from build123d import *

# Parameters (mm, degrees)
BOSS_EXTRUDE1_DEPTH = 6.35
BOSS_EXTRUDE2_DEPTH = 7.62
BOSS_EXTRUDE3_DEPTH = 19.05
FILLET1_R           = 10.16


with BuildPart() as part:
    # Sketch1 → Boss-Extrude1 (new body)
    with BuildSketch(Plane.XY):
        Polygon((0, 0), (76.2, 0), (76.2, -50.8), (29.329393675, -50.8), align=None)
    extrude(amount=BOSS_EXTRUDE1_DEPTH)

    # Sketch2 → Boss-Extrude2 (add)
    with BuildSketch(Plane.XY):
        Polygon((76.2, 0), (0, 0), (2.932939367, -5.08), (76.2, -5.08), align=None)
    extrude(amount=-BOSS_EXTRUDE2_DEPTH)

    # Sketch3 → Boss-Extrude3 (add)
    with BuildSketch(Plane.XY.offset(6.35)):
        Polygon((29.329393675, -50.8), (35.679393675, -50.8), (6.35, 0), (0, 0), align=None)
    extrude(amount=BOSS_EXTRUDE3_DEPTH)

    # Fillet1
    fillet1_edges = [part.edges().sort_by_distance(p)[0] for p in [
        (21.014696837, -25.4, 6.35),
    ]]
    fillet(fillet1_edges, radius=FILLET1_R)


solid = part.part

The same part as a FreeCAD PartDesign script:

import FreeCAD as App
import Part
import Sketcher

V = App.Vector
Q = App.Units.Quantity


def edges_at(feature, points):
    """Names of the edges that pass closest to the given points."""
    edges = feature.Shape.Edges
    near = lambda p: min(range(len(edges)), key=lambda i: edges[i].distToShape(Part.Vertex(*p))[0])
    return sorted({f"Edge{near(p) + 1}" for p in points})


def add_polygon(sketch, points):
    """Adds a closed chain of lines whose ends are joined by coincident constraints."""
    first, n = sketch.GeometryCount, len(points)
    for a, b in zip(points, points[1:] + points[:1]):
        sketch.addGeometry(Part.LineSegment(App.Vector(*a, 0), App.Vector(*b, 0)), False)
    for i in range(n):
        sketch.addConstraint(Sketcher.Constraint("Coincident", first + i, 2, first + (i + 1) % n, 1))

doc = App.newDocument("Part")
body = doc.addObject("PartDesign::Body", "Body")

# Sketch on XY plane
sketch1 = body.newObject("Sketcher::SketchObject", "Sketch")
sketch1.AttachmentSupport = (doc.getObject("XY_Plane"), [""])
sketch1.MapMode = "FlatFace"
add_polygon(sketch1, [(76, 0), (0, 0), (29, -51), (76, -51)])  # lines 0-3
sketch1.addConstraint([
    Sketcher.Constraint("Horizontal", 0),
    Sketcher.Constraint("Horizontal", 2),
    Sketcher.Constraint("Vertical", 3),
    Sketcher.Constraint("Coincident", 0, 2, -1, 1),
    Sketcher.Constraint("DistanceX", 0, 2, 0, 1, Q("3 in")),
    Sketcher.Constraint("DistanceY", 3, 1, 3, 2, Q("2 in")),
    Sketcher.Constraint("Angle", 1, Q("-60 deg")),
])
pad1 = body.newObject("PartDesign::Pad", "Pad")
pad1.Profile = sketch1
pad1.Length = Q("0.25 in")

# Sketch on XY plane
sketch2 = body.newObject("Sketcher::SketchObject", "Sketch001")
sketch2.AttachmentSupport = (doc.getObject("XY_Plane"), [""])
sketch2.MapMode = "FlatFace"
add_polygon(sketch2, [(76, 0), (0, 0), (3, -5), (76, -5)])  # lines 0-3
sketch2.addConstraint([
    Sketcher.Constraint("Horizontal", 0),
    Sketcher.Constraint("Horizontal", 2),
    Sketcher.Constraint("Vertical", 3),
    Sketcher.Constraint("Coincident", 0, 2, -1, 1),
    Sketcher.Constraint("DistanceX", 0, 2, 0, 1, Q("3 in")),
    Sketcher.Constraint("DistanceY", 3, 1, 3, 2, Q("0.2 in")),
    Sketcher.Constraint("Angle", 1, Q("-60 deg")),
])
pad2 = body.newObject("PartDesign::Pad", "Pad001")
pad2.Profile = sketch2
pad2.Length = Q("0.3 in")
pad2.Reversed = True

# Sketch on XY plane
sketch3 = body.newObject("Sketcher::SketchObject", "Sketch002")
sketch3.AttachmentSupport = (doc.getObject("XY_Plane"), [""])
sketch3.MapMode = "FlatFace"
sketch3.AttachmentOffset = App.Placement(V(0, 0, 0.25 * 25.4), App.Rotation())
add_polygon(sketch3, [(29, -51), (36, -51), (6, 0), (0, 0)])  # lines 0-3
sketch3.addConstraint([
    Sketcher.Constraint("Horizontal", 0),
    Sketcher.Constraint("Horizontal", 2),
    Sketcher.Constraint("Coincident", 2, 2, -1, 1),
    Sketcher.Constraint("Parallel", 1, 3),
    Sketcher.Constraint("DistanceY", 0, 2, -1, 1, Q("2 in")),
    Sketcher.Constraint("Angle", 1, Q("120 deg")),
    Sketcher.Constraint("DistanceX", 0, 1, 0, 2, Q("0.25 in")),
])
pad3 = body.newObject("PartDesign::Pad", "Pad002")
pad3.Profile = sketch3
pad3.Length = Q("0.75 in")
doc.recompute()

fillet = body.newObject("PartDesign::Fillet", "Fillet")
fillet.Base = (pad3, edges_at(pad3, [(21.015, -25.4, 6.35)]))
fillet.Radius = Q("0.4 in")

doc.recompute()
